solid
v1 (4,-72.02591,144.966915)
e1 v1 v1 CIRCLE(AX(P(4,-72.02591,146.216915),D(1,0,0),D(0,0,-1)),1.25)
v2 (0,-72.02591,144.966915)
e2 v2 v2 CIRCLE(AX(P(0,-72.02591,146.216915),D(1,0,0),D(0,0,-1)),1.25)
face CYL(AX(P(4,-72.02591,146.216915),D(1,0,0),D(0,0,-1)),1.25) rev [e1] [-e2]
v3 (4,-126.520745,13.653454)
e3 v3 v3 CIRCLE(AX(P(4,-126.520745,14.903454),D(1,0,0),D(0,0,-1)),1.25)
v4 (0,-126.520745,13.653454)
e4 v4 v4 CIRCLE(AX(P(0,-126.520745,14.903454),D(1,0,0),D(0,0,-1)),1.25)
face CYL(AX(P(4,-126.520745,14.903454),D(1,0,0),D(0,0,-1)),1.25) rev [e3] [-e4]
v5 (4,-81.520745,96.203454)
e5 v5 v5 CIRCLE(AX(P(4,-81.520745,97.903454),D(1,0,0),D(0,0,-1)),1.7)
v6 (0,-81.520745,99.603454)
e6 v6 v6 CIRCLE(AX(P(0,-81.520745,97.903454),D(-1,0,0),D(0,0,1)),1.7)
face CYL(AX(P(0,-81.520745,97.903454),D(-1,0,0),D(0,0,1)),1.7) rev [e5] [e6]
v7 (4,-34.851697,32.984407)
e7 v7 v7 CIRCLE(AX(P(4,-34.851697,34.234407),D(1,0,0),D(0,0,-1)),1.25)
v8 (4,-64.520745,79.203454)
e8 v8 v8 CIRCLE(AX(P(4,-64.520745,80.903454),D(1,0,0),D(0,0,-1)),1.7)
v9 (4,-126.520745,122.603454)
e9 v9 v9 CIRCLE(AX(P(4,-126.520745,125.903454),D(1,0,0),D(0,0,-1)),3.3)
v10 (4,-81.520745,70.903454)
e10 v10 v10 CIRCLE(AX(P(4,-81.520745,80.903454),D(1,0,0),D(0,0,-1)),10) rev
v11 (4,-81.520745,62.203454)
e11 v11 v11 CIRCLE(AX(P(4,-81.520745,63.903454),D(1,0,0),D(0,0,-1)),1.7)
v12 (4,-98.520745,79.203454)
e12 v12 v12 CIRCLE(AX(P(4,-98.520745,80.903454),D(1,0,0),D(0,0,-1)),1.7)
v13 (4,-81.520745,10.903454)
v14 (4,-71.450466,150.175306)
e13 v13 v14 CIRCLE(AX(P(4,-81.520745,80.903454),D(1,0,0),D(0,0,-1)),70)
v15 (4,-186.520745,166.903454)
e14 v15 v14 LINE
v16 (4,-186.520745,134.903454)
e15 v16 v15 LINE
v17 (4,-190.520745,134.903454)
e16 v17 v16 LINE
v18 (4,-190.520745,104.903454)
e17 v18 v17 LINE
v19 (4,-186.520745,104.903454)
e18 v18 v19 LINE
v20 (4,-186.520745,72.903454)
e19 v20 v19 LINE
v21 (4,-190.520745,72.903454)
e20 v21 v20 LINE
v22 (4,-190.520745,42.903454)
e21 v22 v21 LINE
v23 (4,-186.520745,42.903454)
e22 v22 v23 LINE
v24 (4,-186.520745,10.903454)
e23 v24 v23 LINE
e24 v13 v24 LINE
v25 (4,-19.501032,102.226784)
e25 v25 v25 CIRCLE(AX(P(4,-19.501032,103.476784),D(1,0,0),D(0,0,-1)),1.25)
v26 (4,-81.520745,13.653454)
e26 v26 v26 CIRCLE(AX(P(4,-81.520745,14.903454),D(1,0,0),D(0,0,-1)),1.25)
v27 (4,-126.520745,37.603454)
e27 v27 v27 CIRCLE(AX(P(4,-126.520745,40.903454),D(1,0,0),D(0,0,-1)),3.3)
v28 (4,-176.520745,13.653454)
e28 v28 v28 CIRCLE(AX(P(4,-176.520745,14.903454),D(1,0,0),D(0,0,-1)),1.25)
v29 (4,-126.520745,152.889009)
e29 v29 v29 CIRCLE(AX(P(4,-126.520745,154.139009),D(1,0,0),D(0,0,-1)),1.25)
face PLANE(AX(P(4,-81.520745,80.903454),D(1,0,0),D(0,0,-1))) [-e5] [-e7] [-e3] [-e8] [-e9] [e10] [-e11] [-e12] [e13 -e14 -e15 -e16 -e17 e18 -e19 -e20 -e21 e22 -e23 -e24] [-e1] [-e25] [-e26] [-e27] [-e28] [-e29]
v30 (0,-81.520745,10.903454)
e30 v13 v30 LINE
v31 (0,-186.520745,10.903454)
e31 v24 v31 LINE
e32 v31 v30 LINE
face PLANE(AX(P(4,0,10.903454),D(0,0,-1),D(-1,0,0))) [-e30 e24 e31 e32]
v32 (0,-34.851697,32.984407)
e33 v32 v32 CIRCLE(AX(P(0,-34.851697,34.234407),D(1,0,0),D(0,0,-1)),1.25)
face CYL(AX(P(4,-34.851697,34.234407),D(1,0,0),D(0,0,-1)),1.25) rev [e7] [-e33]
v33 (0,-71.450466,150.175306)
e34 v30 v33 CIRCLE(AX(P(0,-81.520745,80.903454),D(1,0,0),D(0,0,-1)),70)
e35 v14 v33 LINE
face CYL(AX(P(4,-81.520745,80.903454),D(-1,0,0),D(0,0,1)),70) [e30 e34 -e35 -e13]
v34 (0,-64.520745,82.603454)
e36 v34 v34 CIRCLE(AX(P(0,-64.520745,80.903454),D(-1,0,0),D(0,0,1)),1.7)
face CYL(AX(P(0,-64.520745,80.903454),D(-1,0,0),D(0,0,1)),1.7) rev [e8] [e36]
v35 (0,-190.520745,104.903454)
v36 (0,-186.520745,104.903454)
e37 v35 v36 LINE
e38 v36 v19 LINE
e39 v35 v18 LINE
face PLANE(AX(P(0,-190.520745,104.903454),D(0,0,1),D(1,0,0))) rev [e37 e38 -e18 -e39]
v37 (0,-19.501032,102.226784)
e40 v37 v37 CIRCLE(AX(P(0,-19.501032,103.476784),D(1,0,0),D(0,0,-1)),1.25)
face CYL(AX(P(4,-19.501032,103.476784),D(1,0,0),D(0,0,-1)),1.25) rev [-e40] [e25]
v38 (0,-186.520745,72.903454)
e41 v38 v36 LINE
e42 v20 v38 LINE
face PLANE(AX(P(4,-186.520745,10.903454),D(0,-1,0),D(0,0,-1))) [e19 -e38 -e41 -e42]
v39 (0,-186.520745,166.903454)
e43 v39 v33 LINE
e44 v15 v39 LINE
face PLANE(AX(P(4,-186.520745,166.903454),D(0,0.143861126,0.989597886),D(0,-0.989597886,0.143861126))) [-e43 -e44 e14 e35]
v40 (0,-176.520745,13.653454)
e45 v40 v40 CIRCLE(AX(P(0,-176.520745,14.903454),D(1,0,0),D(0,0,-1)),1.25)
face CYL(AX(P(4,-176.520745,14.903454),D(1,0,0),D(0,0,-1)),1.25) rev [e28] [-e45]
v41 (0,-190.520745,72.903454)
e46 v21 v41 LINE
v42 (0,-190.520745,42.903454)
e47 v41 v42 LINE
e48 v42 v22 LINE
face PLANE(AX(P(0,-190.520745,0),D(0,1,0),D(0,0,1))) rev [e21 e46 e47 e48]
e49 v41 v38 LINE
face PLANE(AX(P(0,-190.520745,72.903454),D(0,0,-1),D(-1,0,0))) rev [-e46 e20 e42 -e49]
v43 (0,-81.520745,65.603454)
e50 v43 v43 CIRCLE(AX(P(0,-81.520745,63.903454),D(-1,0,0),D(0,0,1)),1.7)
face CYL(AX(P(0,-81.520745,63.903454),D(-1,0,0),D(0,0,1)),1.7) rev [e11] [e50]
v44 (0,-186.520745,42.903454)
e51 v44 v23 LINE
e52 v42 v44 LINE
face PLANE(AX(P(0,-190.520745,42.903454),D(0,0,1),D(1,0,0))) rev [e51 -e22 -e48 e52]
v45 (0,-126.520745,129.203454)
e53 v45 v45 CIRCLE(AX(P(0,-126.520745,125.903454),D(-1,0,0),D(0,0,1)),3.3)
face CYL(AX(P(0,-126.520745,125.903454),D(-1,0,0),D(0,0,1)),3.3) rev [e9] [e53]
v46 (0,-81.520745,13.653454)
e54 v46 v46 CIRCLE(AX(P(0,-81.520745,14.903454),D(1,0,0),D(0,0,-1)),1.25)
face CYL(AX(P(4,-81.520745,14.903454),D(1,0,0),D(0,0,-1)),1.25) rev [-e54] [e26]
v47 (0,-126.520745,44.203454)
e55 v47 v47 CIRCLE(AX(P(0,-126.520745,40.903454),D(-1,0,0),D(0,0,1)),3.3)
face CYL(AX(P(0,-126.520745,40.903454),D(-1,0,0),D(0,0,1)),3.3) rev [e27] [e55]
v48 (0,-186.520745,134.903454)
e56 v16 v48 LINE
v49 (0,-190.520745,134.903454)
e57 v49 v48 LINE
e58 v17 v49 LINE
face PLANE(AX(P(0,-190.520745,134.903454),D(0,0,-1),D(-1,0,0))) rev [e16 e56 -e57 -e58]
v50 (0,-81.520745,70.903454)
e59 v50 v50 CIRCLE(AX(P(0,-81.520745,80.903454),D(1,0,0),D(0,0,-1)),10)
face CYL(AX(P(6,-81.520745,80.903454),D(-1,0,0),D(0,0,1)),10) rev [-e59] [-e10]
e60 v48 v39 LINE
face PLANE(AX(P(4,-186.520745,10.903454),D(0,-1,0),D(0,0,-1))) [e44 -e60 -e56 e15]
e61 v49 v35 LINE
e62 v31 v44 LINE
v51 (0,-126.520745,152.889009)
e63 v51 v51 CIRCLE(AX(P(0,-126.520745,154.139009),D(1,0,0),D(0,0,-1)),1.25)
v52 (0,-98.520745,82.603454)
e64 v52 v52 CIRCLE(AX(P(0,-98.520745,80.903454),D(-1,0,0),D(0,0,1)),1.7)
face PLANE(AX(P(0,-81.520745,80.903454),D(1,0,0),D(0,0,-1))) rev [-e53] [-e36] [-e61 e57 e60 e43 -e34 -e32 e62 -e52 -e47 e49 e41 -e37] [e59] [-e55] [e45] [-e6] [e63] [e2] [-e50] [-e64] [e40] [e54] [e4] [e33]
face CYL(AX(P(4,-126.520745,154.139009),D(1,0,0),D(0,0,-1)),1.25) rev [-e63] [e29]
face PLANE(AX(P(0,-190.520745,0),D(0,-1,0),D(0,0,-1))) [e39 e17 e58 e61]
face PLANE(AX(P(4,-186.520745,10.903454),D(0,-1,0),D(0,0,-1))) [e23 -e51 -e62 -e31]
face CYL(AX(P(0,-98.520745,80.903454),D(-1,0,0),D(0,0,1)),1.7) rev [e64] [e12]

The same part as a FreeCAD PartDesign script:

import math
import FreeCAD as App
import Part
import Sketcher
Q = App.Units.Quantity


def add_polygon(sketch, points):
    """Adds a closed chain of lines whose ends are joined by coincident constraints."""
    first, n = sketch.GeometryCount, len(points)
    for a, b in zip(points, points[1:] + points[:1]):
        sketch.addGeometry(Part.LineSegment(App.Vector(*a, 0), App.Vector(*b, 0)), False)
    for i in range(n):
        sketch.addConstraint(Sketcher.Constraint("Coincident", first + i, 2, first + (i + 1) % n, 1))

doc = App.newDocument("Part")
body = doc.addObject("PartDesign::Body", "Body")

# Sketch on YZ plane
sketch1 = body.newObject("Sketcher::SketchObject", "Sketch")
sketch1.AttachmentSupport = (doc.getObject("YZ_Plane"), [""])
sketch1.MapMode = "FlatFace"
sketch1.addGeometry(Part.LineSegment(App.Vector(-13, 121, 0), App.Vector(-24, 121, 0)), False)
sketch1.addGeometry(Part.ArcOfCircle(Part.Circle(App.Vector(-82, 81, 0), App.Vector(0, 0, 1), 70), math.radians(35), math.radians(82)), False)
sketch1.addGeometry(Part.LineSegment(App.Vector(-71, 150, 0), App.Vector(-187, 167, 0)), False)
sketch1.addGeometry(Part.LineSegment(App.Vector(-187, 167, 0), App.Vector(-187, 2, 0)), False)
sketch1.addGeometry(Part.LineSegment(App.Vector(-187, 2, 0), App.Vector(-82, 2, 0)), False)
sketch1.addGeometry(Part.ArcOfCircle(Part.Circle(App.Vector(-82, 81, 0), App.Vector(0, 0, 1), 79), math.radians(-90), math.radians(30)), False)
sketch1.addConstraint(Sketcher.Constraint("Coincident", 0, 2, 1, 1))
sketch1.addConstraint(Sketcher.Constraint("Tangent", 1, 2, 2, 1))
sketch1.addConstraint(Sketcher.Constraint("Coincident", 2, 2, 3, 1))
sketch1.addConstraint(Sketcher.Constraint("Coincident", 3, 2, 4, 1))
sketch1.addConstraint(Sketcher.Constraint("Tangent", 4, 2, 5, 1))
sketch1.addConstraint(Sketcher.Constraint("Coincident", 5, 2, 0, 1))
sketch1.addConstraint(Sketcher.Constraint("Horizontal", 0))
sketch1.addConstraint(Sketcher.Constraint("Vertical", 3))
sketch1.addConstraint(Sketcher.Constraint("Horizontal", 4))
sketch1.addConstraint(Sketcher.Constraint("Coincident", 5, 3, 1, 3))
sketch1.addConstraint(Sketcher.Constraint("Radius", 1, Q("70 mm")))
sketch1.addConstraint(Sketcher.Constraint("Radius", 5, Q("79 mm")))
sketch1.addConstraint(Sketcher.Constraint("DistanceX", 4, 1, 4, 2, Q("105 mm")))
sketch1.addConstraint(Sketcher.Constraint("DistanceY", 3, 2, 3, 1, Q("165 mm")))
sketch1.addConstraint(Sketcher.Constraint("DistanceY", 5, 3, 0, 2, Q("40 mm")))
sketch1.addConstraint(Sketcher.Constraint("DistanceX", 0, 2, -1, 1, Q("24.075118 mm")))
sketch1.addConstraint(Sketcher.Constraint("DistanceY", -1, 1, 1, 3, Q("80.903454 mm")))
pad1 = body.newObject("PartDesign::Pad", "Pad")
pad1.Profile = sketch1
pad1.Length = 4

# Sketch on YZ plane
sketch2 = body.newObject("Sketcher::SketchObject", "Sketch001")
sketch2.AttachmentSupport = (doc.getObject("YZ_Plane"), [""])
sketch2.MapMode = "FlatFace"
sketch2.addGeometry(Part.Circle(App.Vector(-82, 81, 0), App.Vector(0, 0, 1), 10), False)
sketch2.addConstraint(Sketcher.Constraint("Diameter", 0, Q("20 mm")))
sketch2.addConstraint(Sketcher.Constraint("DistanceX", 0, 3, -1, 1, Q("81.520745 mm")))
sketch2.addConstraint(Sketcher.Constraint("DistanceY", -1, 1, 0, 3, Q("80.903454 mm")))
pocket1 = body.newObject("PartDesign::Pocket", "Pocket")
pocket1.Profile = sketch2
pocket1.Length = 6
pocket1.Reversed = True

# Sketch on XZ plane
sketch3 = body.newObject("Sketcher::SketchObject", "Sketch002")
sketch3.AttachmentSupport = (doc.getObject("XZ_Plane"), [""])
sketch3.MapMode = "FlatFace"
sketch3.AttachmentOffset = App.Placement(App.Vector(0, 0, 81.520745), App.Rotation())
add_polygon(sketch3, [(21, 63.9), (0, 63.9), (0, 65.6), (20, 65.6)])  # lines 0-3
sketch3.addGeometry(Part.LineSegment(App.Vector(0, 63.9, 0), App.Vector(21, 63.9, 0)), True)  # axis
sketch3.addConstraint(Sketcher.Constraint("Horizontal", 0))
sketch3.addConstraint(Sketcher.Constraint("Vertical", 1))
sketch3.addConstraint(Sketcher.Constraint("Horizontal", 2))
sketch3.addConstraint(Sketcher.Constraint("Horizontal", 4))
sketch3.addConstraint(Sketcher.Constraint("Coincident", 4, 1, 0, 2))
sketch3.addConstraint(Sketcher.Constraint("PointOnObject", 0, 2, -2))
sketch3.addConstraint(Sketcher.Constraint("Equal", 0, 4))
sketch3.addConstraint(Sketcher.Constraint("DistanceX", 2, 1, 2, 2, Q("20 mm")))
sketch3.addConstraint(Sketcher.Constraint("Angle", 3, Q("-59 deg")))
sketch3.addConstraint(Sketcher.Constraint("DistanceY", 1, 1, 1, 2, Q("1.7 mm")))
sketch3.addConstraint(Sketcher.Constraint("DistanceY", -1, 1, 0, 2, Q("63.903454 mm")))
groove = body.newObject("PartDesign::Groove", "Groove")
groove.Profile = sketch3
groove.ReferenceAxis = (sketch3, ["Axis0"])
groove.Angle = 360

# Sketch on YZ plane
sketch4 = body.newObject("Sketcher::SketchObject", "Sketch003")
sketch4.AttachmentSupport = (doc.getObject("YZ_Plane"), [""])
sketch4.MapMode = "FlatFace"
sketch4.addGeometry(Part.ArcOfCircle(Part.Circle(App.Vector(-82, 81, 0), App.Vector(0, 0, 1), 79), math.radians(-90), math.radians(30)), False)
sketch4.addGeometry(Part.LineSegment(App.Vector(-13, 121, 0), App.Vector(-24, 121, 0)), False)
sketch4.addGeometry(Part.ArcOfCircle(Part.Circle(App.Vector(-82, 81, 0), App.Vector(0, 0, 1), 70), math.radians(-90), math.radians(35)), False)
sketch4.addGeometry(Part.LineSegment(App.Vector(-82, 11, 0), App.Vector(-187, 11, 0)), False)
sketch4.addGeometry(Part.LineSegment(App.Vector(-187, 11, 0), App.Vector(-187, 2, 0)), False)
sketch4.addGeometry(Part.LineSegment(App.Vector(-187, 2, 0), App.Vector(-82, 2, 0)), False)
sketch4.addConstraint(Sketcher.Constraint("Coincident", 0, 2, 1, 1))
sketch4.addConstraint(Sketcher.Constraint("Coincident", 1, 2, 2, 2))
sketch4.addConstraint(Sketcher.Constraint("Tangent", 2, 1, 3, 1))
sketch4.addConstraint(Sketcher.Constraint("Coincident", 3, 2, 4, 1))
sketch4.addConstraint(Sketcher.Constraint("Coincident", 4, 2, 5, 1))
sketch4.addConstraint(Sketcher.Constraint("Tangent", 5, 2, 0, 1))
sketch4.addConstraint(Sketcher.Constraint("Horizontal", 1))
sketch4.addConstraint(Sketcher.Constraint("Horizontal", 3))
sketch4.addConstraint(Sketcher.Constraint("Vertical", 4))
sketch4.addConstraint(Sketcher.Constraint("Horizontal", 5))
sketch4.addConstraint(Sketcher.Constraint("Coincident", 2, 3, 0, 3))
sketch4.addConstraint(Sketcher.Constraint("Radius", 0, Q("79 mm")))
sketch4.addConstraint(Sketcher.Constraint("Radius", 2, Q("70 mm")))
sketch4.addConstraint(Sketcher.Constraint("DistanceX", 3, 2, 3, 1, Q("105 mm")))
sketch4.addConstraint(Sketcher.Constraint("DistanceY", 0, 3, 0, 2, Q("40 mm")))
sketch4.addConstraint(Sketcher.Constraint("DistanceX", 0, 2, -1, 1, Q("13.395859 mm")))
sketch4.addConstraint(Sketcher.Constraint("DistanceY", -1, 1, 0, 3, Q("80.903454 mm")))
pocket2 = body.newObject("PartDesign::Pocket", "Pocket001")
pocket2.Profile = sketch4
pocket2.Type = "ThroughAll"
pocket2.Midplane = True

# Sketch on YZ plane
sketch5 = body.newObject("Sketcher::SketchObject", "Sketch004")
sketch5.AttachmentSupport = (doc.getObject("YZ_Plane"), [""])
sketch5.MapMode = "FlatFace"
sketch5.AttachmentOffset = App.Placement(App.Vector(0, 0, 4), App.Rotation())
sketch5.addGeometry(Part.Circle(App.Vector(-176.5, 14.9, 0), App.Vector(0, 0, 1), 1.2), False)
sketch5.addGeometry(Part.Circle(App.Vector(-126.5, 14.9, 0), App.Vector(0, 0, 1), 1.2), False)
sketch5.addGeometry(Part.Circle(App.Vector(-34.9, 34.2, 0), App.Vector(0, 0, 1), 1.2), False)
sketch5.addGeometry(Part.Circle(App.Vector(-19.5, 103.5, 0), App.Vector(0, 0, 1), 1.2), False)
sketch5.addGeometry(Part.Circle(App.Vector(-81.5, 14.9, 0), App.Vector(0, 0, 1), 1.2), False)
sketch5.addGeometry(Part.Circle(App.Vector(-72, 146.2, 0), App.Vector(0, 0, 1), 1.2), False)
sketch5.addGeometry(Part.Circle(App.Vector(-126.5, 154.1, 0), App.Vector(0, 0, 1), 1.2), False)
sketch5.addConstraint(Sketcher.Constraint("Equal", 0, 1))
sketch5.addConstraint(Sketcher.Constraint("Equal", 1, 2))
sketch5.addConstraint(Sketcher.Constraint("Equal", 2, 3))
sketch5.addConstraint(Sketcher.Constraint("Equal", 3, 4))
sketch5.addConstraint(Sketcher.Constraint("Equal", 4, 5))
sketch5.addConstraint(Sketcher.Constraint("Equal", 5, 6))
sketch5.addConstraint(Sketcher.Constraint("Horizontal", 0, 3, 1, 3))
sketch5.addConstraint(Sketcher.Constraint("Horizontal", 1, 3, 4, 3))
sketch5.addConstraint(Sketcher.Constraint("Vertical", 1, 3, 6, 3))
sketch5.addConstraint(Sketcher.Constraint("Diameter", 0, Q("2.5 mm")))
sketch5.addConstraint(Sketcher.Constraint("DistanceX", 0, 3, 1, 3, Q("50 mm")))
sketch5.addConstraint(Sketcher.Constraint("DistanceX", 1, 3, 4, 3, Q("45 mm")))
sketch5.addConstraint(Sketcher.Constraint("DistanceX", 3, 3, -1, 1, Q("19.501032 mm")))
sketch5.addConstraint(Sketcher.Constraint("DistanceX", 5, 3, -1, 1, Q("72.02591 mm")))
sketch5.addConstraint(Sketcher.Constraint("DistanceY", -1, 1, 6, 3, Q("154.139009 mm")))
sketch5.addConstraint(Sketcher.Constraint("DistanceY", 1, 3, 3, 3, Q("88.573329 mm")))
sketch5.addConstraint(Sketcher.Constraint("DistanceY", 3, 3, 5, 3, Q("42.740131 mm")))
sketch5.addConstraint(Sketcher.Constraint("DistanceY", 2, 3, 5, 3, Q("111.982508 mm")))
sketch5.addConstraint(Sketcher.Constraint("DistanceX", 0, 3, -1, 1, Q("176.520745 mm")))
sketch5.addConstraint(Sketcher.Constraint("DistanceY", -1, 1, 0, 3, Q("14.903454 mm")))
sketch5.addConstraint(Sketcher.Constraint("DistanceX", 2, 3, -1, 1, Q("34.851697 mm")))
doc.recompute()
hole = body.newObject("PartDesign::Hole", "Hole")
hole.Profile = sketch5
hole.ThreadType = "None"
hole.Diameter = 2.5
hole.DepthType = "Dimension"
hole.Depth = 8.5
hole.DrillPoint = "Angled"
hole.DrillPointAngle = 118
doc.recompute()

datumline = body.newObject("PartDesign::Line", "DatumLine")
datumline.Placement = App.Placement(App.Vector(0, -81.520745, 80.903454), App.Rotation(App.Vector(0, 0, 1), App.Vector(1, 0, 0)))
polarpattern = body.newObject("PartDesign::PolarPattern", "PolarPattern")
polarpattern.Originals = [groove]
polarpattern.Axis = (datumline, [""])
polarpattern.Angle = 360
polarpattern.Occurrences = 4
body.Tip = polarpattern

# Sketch on YZ plane
sketch6 = body.newObject("Sketcher::SketchObject", "Sketch005")
sketch6.AttachmentSupport = (doc.getObject("YZ_Plane"), [""])
sketch6.MapMode = "FlatFace"
sketch6.addGeometry(Part.Circle(App.Vector(-126.5, 40.9, 0), App.Vector(0, 0, 1), 3.3), False)
sketch6.addGeometry(Part.Circle(App.Vector(-126.5, 125.9, 0), App.Vector(0, 0, 1), 3.3), False)
sketch6.addConstraint(Sketcher.Constraint("Equal", 0, 1))
sketch6.addConstraint(Sketcher.Constraint("Vertical", 0, 3, 1, 3))
sketch6.addConstraint(Sketcher.Constraint("Diameter", 0, Q("6.6 mm")))
sketch6.addConstraint(Sketcher.Constraint("DistanceY", 0, 3, 1, 3, Q("85 mm")))
sketch6.addConstraint(Sketcher.Constraint("DistanceX", 0, 3, -1, 1, Q("126.520745 mm")))
sketch6.addConstraint(Sketcher.Constraint("DistanceY", -1, 1, 0, 3, Q("40.903454 mm")))
doc.recompute()
hole2 = body.newObject("PartDesign::Hole", "Hole001")
hole2.Profile = sketch6
hole2.ThreadType = "None"
hole2.Diameter = 6.6
hole2.DepthType = "Dimension"
hole2.Depth = 17
hole2.DrillPoint = "Angled"
hole2.DrillPointAngle = 118
hole2.Reversed = True

# Sketch on XZ plane
sketch7 = body.newObject("Sketcher::SketchObject", "Sketch006")
sketch7.AttachmentSupport = (doc.getObject("XZ_Plane"), [""])
sketch7.MapMode = "FlatFace"
sketch7.AttachmentOffset = App.Placement(App.Vector(0, 0, 186.520745), App.Rotation())
add_polygon(sketch7, [(0, 134.9), (0, 104.9), (4, 104.9), (4, 134.9)])  # lines 0-3
add_polygon(sketch7, [(0, 72.9), (0, 42.9), (4, 42.9), (4, 72.9)])  # lines 4-7
sketch7.addConstraint(Sketcher.Constraint("Vertical", 0))
sketch7.addConstraint(Sketcher.Constraint("Horizontal", 1))
sketch7.addConstraint(Sketcher.Constraint("Vertical", 2))
sketch7.addConstraint(Sketcher.Constraint("Horizontal", 3))
sketch7.addConstraint(Sketcher.Constraint("Vertical", 4))
sketch7.addConstraint(Sketcher.Constraint("Horizontal", 5))
sketch7.addConstraint(Sketcher.Constraint("Vertical", 6))
sketch7.addConstraint(Sketcher.Constraint("Horizontal", 7))
sketch7.addConstraint(Sketcher.Constraint("PointOnObject", 0, 2, -2))
sketch7.addConstraint(Sketcher.Constraint("PointOnObject", 4, 2, -2))
sketch7.addConstraint(Sketcher.Constraint("Vertical", 2, 2, 5, 2))
sketch7.addConstraint(Sketcher.Constraint("Equal", 2, 4))
sketch7.addConstraint(Sketcher.Constraint("DistanceX", 1, 1, 1, 2, Q("4 mm")))
sketch7.addConstraint(Sketcher.Constraint("DistanceY", 0, 2, 0, 1, Q("30 mm")))
sketch7.addConstraint(Sketcher.Constraint("DistanceY", 4, 2, 0, 2, Q("62 mm")))
sketch7.addConstraint(Sketcher.Constraint("DistanceY", -1, 1, 0, 2, Q("104.903454 mm")))
pad2 = body.newObject("PartDesign::Pad", "Pad001")
pad2.Profile = sketch7
pad2.Length = 4

doc.recompute()
